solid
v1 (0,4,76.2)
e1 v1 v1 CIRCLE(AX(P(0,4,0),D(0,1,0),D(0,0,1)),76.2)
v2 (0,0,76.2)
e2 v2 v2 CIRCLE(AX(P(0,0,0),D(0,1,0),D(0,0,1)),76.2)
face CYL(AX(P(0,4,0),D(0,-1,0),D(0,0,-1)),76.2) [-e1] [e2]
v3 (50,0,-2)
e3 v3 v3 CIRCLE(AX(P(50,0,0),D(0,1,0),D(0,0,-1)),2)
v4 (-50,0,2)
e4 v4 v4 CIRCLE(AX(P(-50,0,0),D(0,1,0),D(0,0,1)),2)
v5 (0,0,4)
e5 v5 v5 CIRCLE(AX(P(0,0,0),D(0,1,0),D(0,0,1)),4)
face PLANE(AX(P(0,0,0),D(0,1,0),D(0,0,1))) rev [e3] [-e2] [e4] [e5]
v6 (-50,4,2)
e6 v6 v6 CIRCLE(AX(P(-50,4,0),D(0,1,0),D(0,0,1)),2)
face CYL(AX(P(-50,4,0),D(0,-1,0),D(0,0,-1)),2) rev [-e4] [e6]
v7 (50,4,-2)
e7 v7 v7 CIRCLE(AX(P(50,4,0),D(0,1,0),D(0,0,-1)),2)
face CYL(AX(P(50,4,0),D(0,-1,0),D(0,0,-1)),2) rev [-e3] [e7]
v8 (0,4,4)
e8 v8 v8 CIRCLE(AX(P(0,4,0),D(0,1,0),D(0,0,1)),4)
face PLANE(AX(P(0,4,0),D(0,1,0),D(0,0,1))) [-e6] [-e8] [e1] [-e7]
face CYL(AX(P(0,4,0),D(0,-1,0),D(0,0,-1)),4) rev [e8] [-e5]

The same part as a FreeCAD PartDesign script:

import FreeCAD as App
import Part
import Sketcher
Q = App.Units.Quantity

doc = App.newDocument("Part")
body = doc.addObject("PartDesign::Body", "Body")

sketch1 = doc.addObject("Sketcher::SketchObject", "Sketch")
body.addObject(sketch1)
sketch1.AttachmentSupport = (doc.XZ_Plane, [""])
sketch1.MapMode = "FlatFace"
sketch1.addGeometry([
    Part.Circle(App.Vector(0, 0, 0), App.Vector(0, 0, 1), 76.2),
    Part.Circle(App.Vector(-50, 0, 0), App.Vector(0, 0, 1), 2),
    Part.Circle(App.Vector(50, 0, 0), App.Vector(0, 0, 1), 2),
    Part.Circle(App.Vector(0, 0, 0), App.Vector(0, 0, 1), 4),
], False)
sketch1.addConstraint([
    Sketcher.Constraint("Coincident", 0, 3, -1, 1),
    Sketcher.Constraint("Coincident", 3, 3, -1, 1),
    Sketcher.Constraint("Equal", 1, 2),
    Sketcher.Constraint("Symmetric", 1, 3, 2, 3, -1, 1),
    Sketcher.Constraint("PointOnObject", 1, 3, -1),
    Sketcher.Constraint("Diameter", 1, Q("4 mm")),
    Sketcher.Constraint("Diameter", 3, Q("8 mm")),
    Sketcher.Constraint("Diameter", 0, Q("152.4 mm")),
    Sketcher.Constraint("DistanceX", 1, 3, -1, 1, Q("50 mm")),
])
pad1 = doc.addObject("PartDesign::Pad", "Pad")
body.addObject(pad1)
pad1.Profile = sketch1
pad1.Length = 4
pad1.Reversed = True

doc.recompute()
